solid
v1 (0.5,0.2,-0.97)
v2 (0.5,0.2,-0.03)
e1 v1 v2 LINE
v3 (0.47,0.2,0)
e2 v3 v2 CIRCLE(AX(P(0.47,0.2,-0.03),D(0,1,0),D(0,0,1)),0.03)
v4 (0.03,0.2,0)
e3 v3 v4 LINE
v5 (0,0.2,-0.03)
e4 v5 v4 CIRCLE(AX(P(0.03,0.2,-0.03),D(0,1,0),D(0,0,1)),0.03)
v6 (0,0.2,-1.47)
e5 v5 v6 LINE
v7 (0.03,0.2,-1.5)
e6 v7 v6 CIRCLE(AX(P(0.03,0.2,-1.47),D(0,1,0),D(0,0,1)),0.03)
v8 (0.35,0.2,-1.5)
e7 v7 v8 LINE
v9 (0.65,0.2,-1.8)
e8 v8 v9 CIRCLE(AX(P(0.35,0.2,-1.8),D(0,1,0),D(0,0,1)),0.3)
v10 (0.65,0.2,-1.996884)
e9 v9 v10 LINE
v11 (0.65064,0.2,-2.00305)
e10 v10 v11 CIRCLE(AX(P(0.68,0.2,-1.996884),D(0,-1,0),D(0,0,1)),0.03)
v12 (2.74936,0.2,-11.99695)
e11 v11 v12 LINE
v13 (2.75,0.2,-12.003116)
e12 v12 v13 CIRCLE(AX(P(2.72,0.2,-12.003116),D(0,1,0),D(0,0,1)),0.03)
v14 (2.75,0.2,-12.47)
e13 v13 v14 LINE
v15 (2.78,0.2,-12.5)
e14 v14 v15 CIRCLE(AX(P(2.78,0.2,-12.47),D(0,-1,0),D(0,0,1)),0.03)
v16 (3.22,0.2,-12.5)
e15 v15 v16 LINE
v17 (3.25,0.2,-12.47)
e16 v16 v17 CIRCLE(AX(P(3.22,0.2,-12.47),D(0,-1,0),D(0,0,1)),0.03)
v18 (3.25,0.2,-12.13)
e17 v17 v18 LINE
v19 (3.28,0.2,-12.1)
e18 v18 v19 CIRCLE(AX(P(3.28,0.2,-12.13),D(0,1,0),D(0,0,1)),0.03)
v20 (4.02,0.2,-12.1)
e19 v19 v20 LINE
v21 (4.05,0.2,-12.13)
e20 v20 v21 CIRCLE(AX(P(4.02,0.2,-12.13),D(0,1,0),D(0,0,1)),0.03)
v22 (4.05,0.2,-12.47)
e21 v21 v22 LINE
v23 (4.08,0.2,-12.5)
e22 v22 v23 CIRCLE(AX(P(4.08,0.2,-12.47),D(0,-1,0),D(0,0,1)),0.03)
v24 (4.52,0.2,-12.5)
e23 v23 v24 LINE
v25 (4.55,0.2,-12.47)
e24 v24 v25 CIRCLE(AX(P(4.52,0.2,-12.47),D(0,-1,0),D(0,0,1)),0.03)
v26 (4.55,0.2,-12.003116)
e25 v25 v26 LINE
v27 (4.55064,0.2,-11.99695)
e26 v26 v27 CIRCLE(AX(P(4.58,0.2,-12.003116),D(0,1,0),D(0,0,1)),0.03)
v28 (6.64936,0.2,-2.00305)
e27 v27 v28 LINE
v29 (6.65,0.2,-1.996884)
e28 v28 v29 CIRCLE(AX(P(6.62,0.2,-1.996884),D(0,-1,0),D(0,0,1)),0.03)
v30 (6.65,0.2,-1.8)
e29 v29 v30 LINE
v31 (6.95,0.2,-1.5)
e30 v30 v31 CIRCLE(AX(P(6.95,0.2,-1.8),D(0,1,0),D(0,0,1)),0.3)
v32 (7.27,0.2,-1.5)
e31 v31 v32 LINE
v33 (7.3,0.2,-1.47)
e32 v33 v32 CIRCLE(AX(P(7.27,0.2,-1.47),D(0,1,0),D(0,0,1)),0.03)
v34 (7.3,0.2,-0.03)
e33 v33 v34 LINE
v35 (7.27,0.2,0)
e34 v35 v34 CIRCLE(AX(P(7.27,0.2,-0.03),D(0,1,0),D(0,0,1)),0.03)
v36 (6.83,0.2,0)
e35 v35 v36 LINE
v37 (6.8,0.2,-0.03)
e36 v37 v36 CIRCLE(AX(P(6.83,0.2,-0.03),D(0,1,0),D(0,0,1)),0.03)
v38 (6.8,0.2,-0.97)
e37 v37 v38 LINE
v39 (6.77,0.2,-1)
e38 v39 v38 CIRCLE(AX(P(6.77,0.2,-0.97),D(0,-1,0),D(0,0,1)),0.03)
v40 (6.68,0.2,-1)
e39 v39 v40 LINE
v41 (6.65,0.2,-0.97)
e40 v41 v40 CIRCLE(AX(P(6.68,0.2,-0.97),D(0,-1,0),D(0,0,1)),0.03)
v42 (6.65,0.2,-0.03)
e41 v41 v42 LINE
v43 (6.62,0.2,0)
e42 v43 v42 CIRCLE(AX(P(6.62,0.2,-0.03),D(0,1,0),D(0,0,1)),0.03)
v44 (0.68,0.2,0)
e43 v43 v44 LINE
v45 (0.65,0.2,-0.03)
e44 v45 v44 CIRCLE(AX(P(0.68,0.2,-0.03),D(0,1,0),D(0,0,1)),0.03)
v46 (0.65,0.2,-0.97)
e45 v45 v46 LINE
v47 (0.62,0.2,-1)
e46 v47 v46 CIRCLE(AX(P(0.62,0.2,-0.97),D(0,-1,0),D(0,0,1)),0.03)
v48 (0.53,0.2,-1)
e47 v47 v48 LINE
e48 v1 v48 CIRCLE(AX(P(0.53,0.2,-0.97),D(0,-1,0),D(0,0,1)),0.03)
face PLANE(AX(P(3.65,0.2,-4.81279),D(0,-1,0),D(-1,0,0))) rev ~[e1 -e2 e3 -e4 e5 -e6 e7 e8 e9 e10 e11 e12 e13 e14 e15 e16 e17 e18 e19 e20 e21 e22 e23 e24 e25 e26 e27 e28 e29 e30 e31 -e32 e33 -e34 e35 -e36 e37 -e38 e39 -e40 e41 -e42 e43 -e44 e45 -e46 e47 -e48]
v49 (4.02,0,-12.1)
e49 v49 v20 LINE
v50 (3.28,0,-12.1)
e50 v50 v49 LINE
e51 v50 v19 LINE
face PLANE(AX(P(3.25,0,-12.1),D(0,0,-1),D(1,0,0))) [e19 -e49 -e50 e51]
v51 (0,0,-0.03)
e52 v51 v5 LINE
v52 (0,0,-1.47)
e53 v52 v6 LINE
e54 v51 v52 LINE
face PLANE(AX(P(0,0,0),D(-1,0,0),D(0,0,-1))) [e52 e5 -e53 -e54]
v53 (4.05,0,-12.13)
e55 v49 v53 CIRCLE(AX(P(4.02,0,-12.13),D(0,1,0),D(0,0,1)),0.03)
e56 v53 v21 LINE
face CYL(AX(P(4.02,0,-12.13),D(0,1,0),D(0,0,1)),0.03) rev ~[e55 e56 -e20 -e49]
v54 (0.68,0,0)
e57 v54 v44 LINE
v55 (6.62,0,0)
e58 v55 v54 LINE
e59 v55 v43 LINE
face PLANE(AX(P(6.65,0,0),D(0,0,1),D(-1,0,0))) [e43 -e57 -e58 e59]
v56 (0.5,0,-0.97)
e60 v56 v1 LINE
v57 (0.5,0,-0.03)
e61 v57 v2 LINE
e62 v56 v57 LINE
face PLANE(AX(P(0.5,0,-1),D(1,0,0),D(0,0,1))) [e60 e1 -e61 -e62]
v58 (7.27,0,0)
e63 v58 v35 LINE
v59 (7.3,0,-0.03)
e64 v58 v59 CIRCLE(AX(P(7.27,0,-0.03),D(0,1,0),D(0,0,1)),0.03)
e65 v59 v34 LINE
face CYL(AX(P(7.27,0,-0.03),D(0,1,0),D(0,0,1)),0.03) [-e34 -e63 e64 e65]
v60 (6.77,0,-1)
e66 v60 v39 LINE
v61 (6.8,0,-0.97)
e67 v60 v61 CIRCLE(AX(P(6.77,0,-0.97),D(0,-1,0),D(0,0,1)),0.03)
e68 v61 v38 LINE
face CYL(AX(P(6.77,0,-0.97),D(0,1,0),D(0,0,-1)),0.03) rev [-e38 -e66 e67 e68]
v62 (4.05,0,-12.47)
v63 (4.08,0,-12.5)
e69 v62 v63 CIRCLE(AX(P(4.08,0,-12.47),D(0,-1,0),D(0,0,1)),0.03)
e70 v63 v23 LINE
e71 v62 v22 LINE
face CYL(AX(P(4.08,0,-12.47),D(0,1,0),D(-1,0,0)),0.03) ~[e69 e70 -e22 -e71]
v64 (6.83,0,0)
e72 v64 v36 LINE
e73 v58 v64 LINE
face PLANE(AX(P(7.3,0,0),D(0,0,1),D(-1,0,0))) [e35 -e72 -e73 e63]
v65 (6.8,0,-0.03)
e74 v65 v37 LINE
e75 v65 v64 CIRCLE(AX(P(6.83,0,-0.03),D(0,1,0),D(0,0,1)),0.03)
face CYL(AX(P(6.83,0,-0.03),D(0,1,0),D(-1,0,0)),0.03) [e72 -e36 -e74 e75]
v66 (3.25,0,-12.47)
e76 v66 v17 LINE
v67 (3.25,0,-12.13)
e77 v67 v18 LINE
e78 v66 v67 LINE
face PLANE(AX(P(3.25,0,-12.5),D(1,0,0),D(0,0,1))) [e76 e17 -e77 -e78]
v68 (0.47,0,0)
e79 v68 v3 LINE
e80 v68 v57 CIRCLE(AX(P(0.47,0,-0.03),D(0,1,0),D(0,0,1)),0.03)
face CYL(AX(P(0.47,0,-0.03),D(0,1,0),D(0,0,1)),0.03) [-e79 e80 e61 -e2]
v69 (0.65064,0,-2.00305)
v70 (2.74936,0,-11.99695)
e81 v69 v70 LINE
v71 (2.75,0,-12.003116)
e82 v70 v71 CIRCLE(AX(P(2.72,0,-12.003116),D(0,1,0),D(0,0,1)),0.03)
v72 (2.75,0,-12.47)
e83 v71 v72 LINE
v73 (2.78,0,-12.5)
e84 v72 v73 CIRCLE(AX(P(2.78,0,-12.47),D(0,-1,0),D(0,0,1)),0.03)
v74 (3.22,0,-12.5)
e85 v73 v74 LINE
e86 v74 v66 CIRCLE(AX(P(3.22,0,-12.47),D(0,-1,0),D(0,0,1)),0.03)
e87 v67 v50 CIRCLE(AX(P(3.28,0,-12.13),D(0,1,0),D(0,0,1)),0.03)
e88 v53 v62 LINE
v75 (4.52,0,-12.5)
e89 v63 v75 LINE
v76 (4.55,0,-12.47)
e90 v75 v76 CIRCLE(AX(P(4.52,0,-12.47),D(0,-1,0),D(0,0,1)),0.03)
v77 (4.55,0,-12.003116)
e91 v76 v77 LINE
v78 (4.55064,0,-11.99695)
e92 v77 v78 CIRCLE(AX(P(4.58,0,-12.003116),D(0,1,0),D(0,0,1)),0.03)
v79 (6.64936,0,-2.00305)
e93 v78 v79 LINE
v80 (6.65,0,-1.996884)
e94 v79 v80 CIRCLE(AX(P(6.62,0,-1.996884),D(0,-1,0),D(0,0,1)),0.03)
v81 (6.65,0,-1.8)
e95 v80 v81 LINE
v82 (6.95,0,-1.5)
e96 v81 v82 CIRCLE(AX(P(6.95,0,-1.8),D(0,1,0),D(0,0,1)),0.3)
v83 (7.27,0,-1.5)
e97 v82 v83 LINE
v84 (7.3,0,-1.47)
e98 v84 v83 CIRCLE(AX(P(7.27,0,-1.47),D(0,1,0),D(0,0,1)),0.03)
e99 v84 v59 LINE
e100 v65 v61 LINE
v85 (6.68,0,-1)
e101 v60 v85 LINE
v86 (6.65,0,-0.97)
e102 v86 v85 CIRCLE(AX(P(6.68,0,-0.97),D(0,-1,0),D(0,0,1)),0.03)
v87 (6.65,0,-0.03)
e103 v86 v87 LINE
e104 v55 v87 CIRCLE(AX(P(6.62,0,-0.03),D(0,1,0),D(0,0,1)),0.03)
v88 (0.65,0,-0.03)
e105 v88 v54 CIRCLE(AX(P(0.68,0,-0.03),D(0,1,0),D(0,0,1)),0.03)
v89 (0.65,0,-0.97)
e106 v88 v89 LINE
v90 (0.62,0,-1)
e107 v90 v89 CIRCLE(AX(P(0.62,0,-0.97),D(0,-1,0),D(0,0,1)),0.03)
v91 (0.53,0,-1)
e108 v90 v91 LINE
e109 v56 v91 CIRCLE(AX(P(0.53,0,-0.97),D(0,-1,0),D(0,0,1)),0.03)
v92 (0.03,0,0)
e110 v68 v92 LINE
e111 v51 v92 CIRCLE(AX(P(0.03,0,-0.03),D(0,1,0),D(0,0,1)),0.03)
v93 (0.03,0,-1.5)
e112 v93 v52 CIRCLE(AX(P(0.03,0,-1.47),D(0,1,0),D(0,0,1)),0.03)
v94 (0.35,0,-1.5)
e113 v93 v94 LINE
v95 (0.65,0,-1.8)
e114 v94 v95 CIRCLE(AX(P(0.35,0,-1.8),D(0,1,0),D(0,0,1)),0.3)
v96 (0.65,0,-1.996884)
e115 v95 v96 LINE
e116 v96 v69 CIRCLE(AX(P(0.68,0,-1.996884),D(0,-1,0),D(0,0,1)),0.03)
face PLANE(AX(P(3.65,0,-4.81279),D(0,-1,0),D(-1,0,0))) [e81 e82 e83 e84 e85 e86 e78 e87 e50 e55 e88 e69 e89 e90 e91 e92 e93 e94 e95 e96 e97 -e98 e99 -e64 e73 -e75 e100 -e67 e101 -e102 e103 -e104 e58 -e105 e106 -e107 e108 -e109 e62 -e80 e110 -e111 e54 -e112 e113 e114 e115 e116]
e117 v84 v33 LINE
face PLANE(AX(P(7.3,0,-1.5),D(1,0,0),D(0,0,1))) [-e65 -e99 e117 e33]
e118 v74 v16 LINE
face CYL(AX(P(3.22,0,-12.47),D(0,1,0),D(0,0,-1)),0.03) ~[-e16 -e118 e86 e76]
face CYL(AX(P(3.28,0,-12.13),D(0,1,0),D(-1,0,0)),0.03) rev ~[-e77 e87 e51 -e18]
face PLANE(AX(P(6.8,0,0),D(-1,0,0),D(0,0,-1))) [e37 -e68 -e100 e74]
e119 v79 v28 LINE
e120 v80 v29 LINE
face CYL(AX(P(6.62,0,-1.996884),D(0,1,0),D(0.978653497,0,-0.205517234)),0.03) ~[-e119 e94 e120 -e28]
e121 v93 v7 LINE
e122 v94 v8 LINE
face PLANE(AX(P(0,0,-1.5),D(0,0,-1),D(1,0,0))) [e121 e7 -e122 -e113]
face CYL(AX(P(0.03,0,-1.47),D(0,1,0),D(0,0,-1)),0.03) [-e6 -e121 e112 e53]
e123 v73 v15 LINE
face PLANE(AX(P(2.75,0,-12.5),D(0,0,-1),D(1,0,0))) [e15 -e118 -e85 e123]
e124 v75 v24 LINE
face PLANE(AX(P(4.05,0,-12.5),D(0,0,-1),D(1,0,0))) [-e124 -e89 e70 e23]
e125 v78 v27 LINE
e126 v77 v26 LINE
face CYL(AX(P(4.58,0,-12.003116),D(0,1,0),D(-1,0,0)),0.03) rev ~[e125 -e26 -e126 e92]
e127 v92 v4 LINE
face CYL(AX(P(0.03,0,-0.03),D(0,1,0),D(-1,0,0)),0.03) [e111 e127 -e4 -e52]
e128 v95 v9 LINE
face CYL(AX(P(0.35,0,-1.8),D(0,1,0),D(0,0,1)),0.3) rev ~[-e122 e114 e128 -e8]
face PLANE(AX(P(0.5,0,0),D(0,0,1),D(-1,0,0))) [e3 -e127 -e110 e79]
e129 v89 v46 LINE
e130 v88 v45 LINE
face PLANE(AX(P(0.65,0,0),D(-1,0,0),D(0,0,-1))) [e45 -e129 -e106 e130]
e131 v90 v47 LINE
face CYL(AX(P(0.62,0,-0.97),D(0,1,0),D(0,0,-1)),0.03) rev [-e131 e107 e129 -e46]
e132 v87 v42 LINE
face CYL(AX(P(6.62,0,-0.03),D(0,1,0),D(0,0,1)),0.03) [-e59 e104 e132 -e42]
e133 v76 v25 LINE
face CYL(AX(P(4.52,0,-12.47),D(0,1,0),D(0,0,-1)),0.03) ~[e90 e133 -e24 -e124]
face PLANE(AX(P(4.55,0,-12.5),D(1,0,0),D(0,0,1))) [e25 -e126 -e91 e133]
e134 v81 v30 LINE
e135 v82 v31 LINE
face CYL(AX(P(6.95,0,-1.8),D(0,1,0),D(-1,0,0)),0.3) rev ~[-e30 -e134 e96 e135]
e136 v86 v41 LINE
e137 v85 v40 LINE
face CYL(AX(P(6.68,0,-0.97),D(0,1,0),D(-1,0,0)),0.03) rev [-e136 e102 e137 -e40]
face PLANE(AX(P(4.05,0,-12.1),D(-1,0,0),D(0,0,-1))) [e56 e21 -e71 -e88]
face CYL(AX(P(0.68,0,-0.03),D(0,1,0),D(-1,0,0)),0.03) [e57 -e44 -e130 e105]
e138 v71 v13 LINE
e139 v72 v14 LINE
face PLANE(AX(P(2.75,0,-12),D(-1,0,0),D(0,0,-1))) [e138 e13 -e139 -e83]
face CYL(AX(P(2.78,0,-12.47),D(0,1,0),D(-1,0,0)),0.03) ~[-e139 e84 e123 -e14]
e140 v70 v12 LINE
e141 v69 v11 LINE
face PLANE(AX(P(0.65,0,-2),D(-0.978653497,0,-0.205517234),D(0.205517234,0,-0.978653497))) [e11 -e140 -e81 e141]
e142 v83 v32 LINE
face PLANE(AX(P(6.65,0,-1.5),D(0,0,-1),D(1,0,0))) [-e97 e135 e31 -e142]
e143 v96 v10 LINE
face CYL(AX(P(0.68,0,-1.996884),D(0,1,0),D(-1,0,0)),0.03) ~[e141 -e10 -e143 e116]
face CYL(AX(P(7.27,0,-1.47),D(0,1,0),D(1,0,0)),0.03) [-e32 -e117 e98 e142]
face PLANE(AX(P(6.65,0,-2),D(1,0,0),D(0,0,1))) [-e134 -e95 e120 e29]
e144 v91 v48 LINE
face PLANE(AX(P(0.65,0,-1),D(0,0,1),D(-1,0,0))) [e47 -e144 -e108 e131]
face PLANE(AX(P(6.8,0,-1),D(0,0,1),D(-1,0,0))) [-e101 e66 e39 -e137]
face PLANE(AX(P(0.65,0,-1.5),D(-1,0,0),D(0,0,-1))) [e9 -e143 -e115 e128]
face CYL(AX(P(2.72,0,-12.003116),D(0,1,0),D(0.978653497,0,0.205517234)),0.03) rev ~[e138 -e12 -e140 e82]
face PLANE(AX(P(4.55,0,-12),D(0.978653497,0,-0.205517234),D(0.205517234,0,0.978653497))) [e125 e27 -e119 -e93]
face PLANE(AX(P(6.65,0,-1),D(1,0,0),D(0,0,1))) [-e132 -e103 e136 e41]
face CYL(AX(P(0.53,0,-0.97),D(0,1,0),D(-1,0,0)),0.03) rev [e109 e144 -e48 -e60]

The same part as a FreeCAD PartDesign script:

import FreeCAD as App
import Part
import Sketcher
Q = App.Units.Quantity


def edges_at(feature, points):
    """Names of the edges that pass closest to the given points."""
    edges = feature.Shape.Edges
    near = lambda p: min(range(len(edges)), key=lambda i: edges[i].distToShape(Part.Vertex(*p))[0])
    return sorted({f"Edge{near(p) + 1}" for p in points})

doc = App.newDocument("Part")
body = doc.addObject("PartDesign::Body", "Body")

# Sketch on XZ plane
sketch1 = body.newObject("Sketcher::SketchObject", "Sketch")
sketch1.AttachmentSupport = (doc.getObject("XZ_Plane"), [""])
sketch1.MapMode = "FlatFace"
sketch1.addGeometry([
    Part.LineSegment(App.Vector(0, -1.5, 0), App.Vector(0, 0, 0)),  # 0
    Part.LineSegment(App.Vector(0, 0, 0), App.Vector(0.5, 0, 0)),  # 1
    Part.LineSegment(App.Vector(0.5, 0, 0), App.Vector(0.5, -1, 0)),  # 2
    Part.LineSegment(App.Vector(0.5, -1, 0), App.Vector(0.65, -1, 0)),  # 3
    Part.LineSegment(App.Vector(0.65, -1, 0), App.Vector(0.65, 0, 0)),  # 4
    Part.LineSegment(App.Vector(0.65, 0, 0), App.Vector(6.65, 0, 0)),  # 5
    Part.LineSegment(App.Vector(6.65, 0, 0), App.Vector(6.65, -1, 0)),  # 6
    Part.LineSegment(App.Vector(6.65, -1, 0), App.Vector(6.8, -1, 0)),  # 7
    Part.LineSegment(App.Vector(6.8, -1, 0), App.Vector(6.8, 0, 0)),  # 8
    Part.LineSegment(App.Vector(6.8, 0, 0), App.Vector(7.3, 0, 0)),  # 9
    Part.LineSegment(App.Vector(7.3, 0, 0), App.Vector(7.3, -1.5, 0)),  # 10
    Part.LineSegment(App.Vector(7.3, -1.5, 0), App.Vector(6.65, -1.5, 0)),  # 11
    Part.LineSegment(App.Vector(6.65, -1.5, 0), App.Vector(6.65, -2, 0)),  # 12
    Part.LineSegment(App.Vector(6.65, -2, 0), App.Vector(4.55, -12, 0)),  # 13
    Part.LineSegment(App.Vector(4.55, -12, 0), App.Vector(4.55, -12.5, 0)),  # 14
    Part.LineSegment(App.Vector(4.55, -12.5, 0), App.Vector(4.05, -12.5, 0)),  # 15
    Part.LineSegment(App.Vector(4.05, -12.5, 0), App.Vector(4.05, -12.1, 0)),  # 16
    Part.LineSegment(App.Vector(4.05, -12.1, 0), App.Vector(3.25, -12.1, 0)),  # 17
    Part.LineSegment(App.Vector(3.25, -12.1, 0), App.Vector(3.25, -12.5, 0)),  # 18
    Part.LineSegment(App.Vector(3.25, -12.5, 0), App.Vector(2.75, -12.5, 0)),  # 19
    Part.LineSegment(App.Vector(2.75, -12.5, 0), App.Vector(2.75, -12, 0)),  # 20
    Part.LineSegment(App.Vector(2.75, -12, 0), App.Vector(0.65, -2, 0)),  # 21
    Part.LineSegment(App.Vector(0.65, -2, 0), App.Vector(0.65, -1.5, 0)),  # 22
    Part.LineSegment(App.Vector(0.65, -1.5, 0), App.Vector(0, -1.5, 0)),  # 23
], False)
sketch1.addConstraint([
    Sketcher.Constraint("Coincident", 0, 2, 1, 1),
    Sketcher.Constraint("Coincident", 1, 2, 2, 1),
    Sketcher.Constraint("Coincident", 2, 2, 3, 1),
    Sketcher.Constraint("Coincident", 3, 2, 4, 1),
    Sketcher.Constraint("Coincident", 4, 2, 5, 1),
    Sketcher.Constraint("Coincident", 5, 2, 6, 1),
    Sketcher.Constraint("Coincident", 6, 2, 7, 1),
    Sketcher.Constraint("Coincident", 7, 2, 8, 1),
    Sketcher.Constraint("Coincident", 8, 2, 9, 1),
    Sketcher.Constraint("Coincident", 9, 2, 10, 1),
    Sketcher.Constraint("Coincident", 10, 2, 11, 1),
    Sketcher.Constraint("Coincident", 11, 2, 12, 1),
    Sketcher.Constraint("Coincident", 12, 2, 13, 1),
    Sketcher.Constraint("Coincident", 13, 2, 14, 1),
    Sketcher.Constraint("Coincident", 14, 2, 15, 1),
    Sketcher.Constraint("Coincident", 15, 2, 16, 1),
    Sketcher.Constraint("Coincident", 16, 2, 17, 1),
    Sketcher.Constraint("Coincident", 17, 2, 18, 1),
    Sketcher.Constraint("Coincident", 18, 2, 19, 1),
    Sketcher.Constraint("Coincident", 19, 2, 20, 1),
    Sketcher.Constraint("Coincident", 20, 2, 21, 1),
    Sketcher.Constraint("Coincident", 21, 2, 22, 1),
    Sketcher.Constraint("Coincident", 22, 2, 23, 1),
    Sketcher.Constraint("Coincident", 23, 2, 0, 1),
    Sketcher.Constraint("Vertical", 0),
    Sketcher.Constraint("Horizontal", 1),
    Sketcher.Constraint("Vertical", 2),
    Sketcher.Constraint("Horizontal", 3),
    Sketcher.Constraint("Vertical", 4),
    Sketcher.Constraint("Horizontal", 5),
    Sketcher.Constraint("Vertical", 6),
    Sketcher.Constraint("Horizontal", 7),
    Sketcher.Constraint("Vertical", 8),
    Sketcher.Constraint("Horizontal", 9),
    Sketcher.Constraint("Vertical", 10),
    Sketcher.Constraint("Horizontal", 11),
    Sketcher.Constraint("Vertical", 12),
    Sketcher.Constraint("Vertical", 14),
    Sketcher.Constraint("Horizontal", 15),
    Sketcher.Constraint("Vertical", 16),
    Sketcher.Constraint("Horizontal", 17),
    Sketcher.Constraint("Vertical", 18),
    Sketcher.Constraint("Horizontal", 19),
    Sketcher.Constraint("Vertical", 20),
    Sketcher.Constraint("Vertical", 22),
    Sketcher.Constraint("Horizontal", 23),
    Sketcher.Constraint("Coincident", 0, 2, -1, 1),
    Sketcher.Constraint("PointOnObject", 4, 2, -1),
    Sketcher.Constraint("PointOnObject", 8, 2, -1),
    Sketcher.Constraint("Horizontal", 3, 2, 6, 2),
    Sketcher.Constraint("Horizontal", 15, 2, 18, 2),
    Sketcher.Constraint("Horizontal", 13, 2, 20, 2),
    Sketcher.Constraint("Horizontal", 12, 2, 21, 2),
    Sketcher.Constraint("Horizontal", 11, 2, 22, 2),
    Sketcher.Constraint("Vertical", 6, 2, 11, 2),
    Sketcher.Constraint("Vertical", 4, 2, 21, 2),
    Sketcher.Constraint("Equal", 3, 7),
    Sketcher.Constraint("Equal", 1, 9),
    Sketcher.Constraint("Equal", 9, 15),
    Sketcher.Constraint("Equal", 15, 19),
    Sketcher.Constraint("Equal", 19, 12),
    Sketcher.Constraint("Equal", 12, 14),
    Sketcher.Constraint("Equal", 13, 21),
    Sketcher.Constraint("DistanceX", 5, 1, 5, 2, Q("6 mm")),
    Sketcher.Constraint("DistanceY", 2, 2, 2, 1, Q("1 mm")),
    Sketcher.Constraint("DistanceX", 1, 1, 1, 2, Q("0.5 mm")),
    Sketcher.Constraint("DistanceX", 17, 2, 17, 1, Q("0.8 mm")),
    Sketcher.Constraint("DistanceY", 0, 1, 0, 2, Q("1.5 mm")),
    Sketcher.Constraint("DistanceY", 16, 1, 16, 2, Q("0.4 mm")),
    Sketcher.Constraint("DistanceY", 13, 2, -1, 1, Q("12 mm")),
    Sketcher.Constraint("DistanceX", 3, 1, 3, 2, Q("0.15 mm")),
])
pad1 = body.newObject("PartDesign::Pad", "Pad")
pad1.Profile = sketch1
pad1.Length = 0.2
pad1.Reversed = True
doc.recompute()

fillet = body.newObject("PartDesign::Fillet", "Fillet")
fillet.Base = (pad1, edges_at(pad1, [(0.65, 0.1, -1.5), (6.65, 0.1, -1.5)]))
fillet.Radius = 0.3
doc.recompute()

fillet2 = body.newObject("PartDesign::Fillet", "Fillet001")
fillet2.Base = (fillet, edges_at(fillet, [
    (0, 0.1, 0),
    (0, 0.1, -1.5),
    (0.65, 0.1, -2),
    (2.75, 0.1, -12),
    (2.75, 0.1, -12.5),
    (3.25, 0.1, -12.5),
    (3.25, 0.1, -12.1),
    (4.05, 0.1, -12.1),
    (4.05, 0.1, -12.5),
    (4.55, 0.1, -12.5),
    (4.55, 0.1, -12),
    (6.65, 0.1, -2),
    (7.3, 0.1, -1.5),
    (7.3, 0.1, 0),
    (6.8, 0.1, 0),
    (6.8, 0.1, -1),
    (6.65, 0.1, -1),
    (6.65, 0.1, 0),
    (0.65, 0.1, 0),
    (0.65, 0.1, -1),
    (0.5, 0.1, -1),
    (0.5, 0.1, 0),
]))
fillet2.Radius = 0.03

doc.recompute()
